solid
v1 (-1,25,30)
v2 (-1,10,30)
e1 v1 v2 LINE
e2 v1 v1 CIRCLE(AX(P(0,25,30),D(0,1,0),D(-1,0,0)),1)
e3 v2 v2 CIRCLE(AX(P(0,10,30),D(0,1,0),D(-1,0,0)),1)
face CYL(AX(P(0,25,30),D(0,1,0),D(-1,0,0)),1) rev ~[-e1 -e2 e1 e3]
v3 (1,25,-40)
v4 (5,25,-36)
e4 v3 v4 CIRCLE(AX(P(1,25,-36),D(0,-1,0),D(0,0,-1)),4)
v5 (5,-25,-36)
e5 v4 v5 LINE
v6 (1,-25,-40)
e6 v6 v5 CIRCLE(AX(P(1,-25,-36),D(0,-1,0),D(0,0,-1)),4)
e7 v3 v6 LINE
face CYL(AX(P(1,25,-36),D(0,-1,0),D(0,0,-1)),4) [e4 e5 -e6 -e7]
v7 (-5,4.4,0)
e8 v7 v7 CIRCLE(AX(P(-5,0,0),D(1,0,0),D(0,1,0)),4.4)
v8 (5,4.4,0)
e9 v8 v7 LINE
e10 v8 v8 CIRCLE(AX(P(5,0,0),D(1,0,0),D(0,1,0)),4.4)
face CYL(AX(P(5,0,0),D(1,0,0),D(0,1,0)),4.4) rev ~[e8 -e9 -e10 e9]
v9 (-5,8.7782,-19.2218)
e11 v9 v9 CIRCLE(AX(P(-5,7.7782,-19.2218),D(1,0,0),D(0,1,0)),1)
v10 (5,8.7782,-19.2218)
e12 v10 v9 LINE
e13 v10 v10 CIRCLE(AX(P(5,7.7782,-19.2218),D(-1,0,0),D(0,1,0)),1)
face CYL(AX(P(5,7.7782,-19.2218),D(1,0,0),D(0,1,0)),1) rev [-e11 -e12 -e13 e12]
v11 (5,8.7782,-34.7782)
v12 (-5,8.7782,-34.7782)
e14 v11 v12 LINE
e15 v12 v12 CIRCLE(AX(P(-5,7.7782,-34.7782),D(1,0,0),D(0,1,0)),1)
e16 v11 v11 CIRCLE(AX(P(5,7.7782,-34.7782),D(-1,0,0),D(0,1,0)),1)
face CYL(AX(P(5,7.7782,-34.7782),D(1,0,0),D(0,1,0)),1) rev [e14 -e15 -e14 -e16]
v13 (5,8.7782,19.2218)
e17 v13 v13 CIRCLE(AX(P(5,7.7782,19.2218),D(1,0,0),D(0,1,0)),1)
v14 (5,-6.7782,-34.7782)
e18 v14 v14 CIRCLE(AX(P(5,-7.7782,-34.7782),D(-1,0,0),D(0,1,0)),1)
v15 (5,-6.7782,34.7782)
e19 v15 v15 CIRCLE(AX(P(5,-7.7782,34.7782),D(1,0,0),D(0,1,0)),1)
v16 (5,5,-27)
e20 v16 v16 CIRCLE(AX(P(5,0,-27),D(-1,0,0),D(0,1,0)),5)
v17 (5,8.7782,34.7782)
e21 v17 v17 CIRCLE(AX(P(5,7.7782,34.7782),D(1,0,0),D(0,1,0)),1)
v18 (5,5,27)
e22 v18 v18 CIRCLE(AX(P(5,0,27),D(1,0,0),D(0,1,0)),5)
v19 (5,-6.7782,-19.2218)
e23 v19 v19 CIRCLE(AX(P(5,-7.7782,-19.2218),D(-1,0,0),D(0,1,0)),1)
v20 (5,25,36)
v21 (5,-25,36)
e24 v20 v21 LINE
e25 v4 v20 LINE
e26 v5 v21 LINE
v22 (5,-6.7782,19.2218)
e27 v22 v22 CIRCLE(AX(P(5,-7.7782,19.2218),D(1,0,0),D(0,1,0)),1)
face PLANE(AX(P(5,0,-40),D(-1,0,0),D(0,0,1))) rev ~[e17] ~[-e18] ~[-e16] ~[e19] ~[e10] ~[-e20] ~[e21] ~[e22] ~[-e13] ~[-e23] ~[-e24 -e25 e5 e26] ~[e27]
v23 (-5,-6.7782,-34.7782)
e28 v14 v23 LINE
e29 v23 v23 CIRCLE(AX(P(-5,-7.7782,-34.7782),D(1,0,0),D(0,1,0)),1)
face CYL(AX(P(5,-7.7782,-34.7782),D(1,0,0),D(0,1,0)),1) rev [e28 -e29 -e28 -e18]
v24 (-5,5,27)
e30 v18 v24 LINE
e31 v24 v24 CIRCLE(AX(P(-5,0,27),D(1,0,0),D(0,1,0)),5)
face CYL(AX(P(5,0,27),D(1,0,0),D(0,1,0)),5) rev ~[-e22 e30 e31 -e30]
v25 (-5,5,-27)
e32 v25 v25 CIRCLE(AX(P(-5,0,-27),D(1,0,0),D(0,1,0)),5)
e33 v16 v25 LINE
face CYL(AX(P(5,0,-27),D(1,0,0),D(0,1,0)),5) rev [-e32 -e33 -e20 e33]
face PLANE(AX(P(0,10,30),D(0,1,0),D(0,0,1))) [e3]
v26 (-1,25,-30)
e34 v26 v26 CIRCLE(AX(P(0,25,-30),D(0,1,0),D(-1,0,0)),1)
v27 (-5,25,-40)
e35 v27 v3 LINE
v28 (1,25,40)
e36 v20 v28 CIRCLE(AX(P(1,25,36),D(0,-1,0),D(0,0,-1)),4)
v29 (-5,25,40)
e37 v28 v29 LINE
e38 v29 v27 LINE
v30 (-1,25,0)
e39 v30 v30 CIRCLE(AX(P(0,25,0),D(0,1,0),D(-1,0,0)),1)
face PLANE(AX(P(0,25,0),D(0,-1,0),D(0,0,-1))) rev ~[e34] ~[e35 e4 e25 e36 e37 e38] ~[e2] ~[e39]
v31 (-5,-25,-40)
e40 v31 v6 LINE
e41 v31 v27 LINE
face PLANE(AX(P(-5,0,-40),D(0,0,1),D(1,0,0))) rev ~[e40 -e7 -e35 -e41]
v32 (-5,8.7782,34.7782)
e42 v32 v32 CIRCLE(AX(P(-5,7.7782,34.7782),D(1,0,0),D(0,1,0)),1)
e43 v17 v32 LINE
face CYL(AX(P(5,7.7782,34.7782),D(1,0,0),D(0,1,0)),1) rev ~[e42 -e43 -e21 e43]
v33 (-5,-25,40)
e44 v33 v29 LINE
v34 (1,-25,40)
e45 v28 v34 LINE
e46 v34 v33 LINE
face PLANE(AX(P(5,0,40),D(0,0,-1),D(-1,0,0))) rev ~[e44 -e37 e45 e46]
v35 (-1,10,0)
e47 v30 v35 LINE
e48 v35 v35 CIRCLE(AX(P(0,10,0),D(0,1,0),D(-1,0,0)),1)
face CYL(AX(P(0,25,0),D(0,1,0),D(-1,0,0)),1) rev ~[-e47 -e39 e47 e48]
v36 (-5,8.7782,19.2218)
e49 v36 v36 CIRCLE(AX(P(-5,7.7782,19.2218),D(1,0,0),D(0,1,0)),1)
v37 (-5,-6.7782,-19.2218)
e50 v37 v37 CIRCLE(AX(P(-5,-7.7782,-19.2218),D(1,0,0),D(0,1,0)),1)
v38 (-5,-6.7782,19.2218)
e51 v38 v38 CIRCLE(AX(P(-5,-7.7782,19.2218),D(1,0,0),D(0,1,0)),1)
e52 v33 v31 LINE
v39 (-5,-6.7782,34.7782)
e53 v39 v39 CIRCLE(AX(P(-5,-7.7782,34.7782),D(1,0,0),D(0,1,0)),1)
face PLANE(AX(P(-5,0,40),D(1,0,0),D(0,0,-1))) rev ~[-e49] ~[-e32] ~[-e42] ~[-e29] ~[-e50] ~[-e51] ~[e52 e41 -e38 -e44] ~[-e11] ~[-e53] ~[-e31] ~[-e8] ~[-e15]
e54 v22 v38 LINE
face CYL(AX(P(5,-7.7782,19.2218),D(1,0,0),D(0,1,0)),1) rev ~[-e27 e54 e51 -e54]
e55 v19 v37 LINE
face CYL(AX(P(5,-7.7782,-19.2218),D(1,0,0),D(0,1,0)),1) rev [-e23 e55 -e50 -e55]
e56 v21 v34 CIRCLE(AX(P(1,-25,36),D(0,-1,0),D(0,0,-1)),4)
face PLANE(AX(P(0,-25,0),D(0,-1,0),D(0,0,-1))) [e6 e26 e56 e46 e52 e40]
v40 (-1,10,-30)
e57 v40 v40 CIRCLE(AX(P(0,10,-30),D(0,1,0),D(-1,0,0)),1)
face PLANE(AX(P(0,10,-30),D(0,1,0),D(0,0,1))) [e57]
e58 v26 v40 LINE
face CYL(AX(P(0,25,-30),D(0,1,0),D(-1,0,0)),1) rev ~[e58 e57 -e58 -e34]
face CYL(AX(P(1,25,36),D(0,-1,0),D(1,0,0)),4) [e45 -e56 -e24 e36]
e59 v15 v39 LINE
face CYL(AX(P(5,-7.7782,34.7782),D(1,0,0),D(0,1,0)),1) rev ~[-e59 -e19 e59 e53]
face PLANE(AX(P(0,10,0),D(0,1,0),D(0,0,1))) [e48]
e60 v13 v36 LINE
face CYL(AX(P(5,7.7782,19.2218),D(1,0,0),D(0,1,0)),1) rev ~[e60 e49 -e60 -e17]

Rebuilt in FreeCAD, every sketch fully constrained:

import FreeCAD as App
import Part
import Sketcher
from FreeCAD import Vector
Q = App.Units.Quantity


def edges_at(feature, points):
    """Names of the edges that pass closest to the given points."""
    edges = feature.Shape.Edges
    near = lambda p: min(range(len(edges)), key=lambda i: edges[i].distToShape(Part.Vertex(*p))[0])
    return sorted({f"Edge{near(p) + 1}" for p in points})

doc = App.newDocument("Part")
body = doc.addObject("PartDesign::Body", "Body")

sketch1 = body.newObject("Sketcher::SketchObject", "Sketch")
sketch1.AttachmentSupport = (doc.getObject("XZ_Plane"), [""])
sketch1.MapMode = "FlatFace"
sketch1.addGeometry([
    Part.LineSegment(Vector(-5, 40, 0), Vector(-5, -40, 0)),
    Part.LineSegment(Vector(-5, -40, 0), Vector(5, -40, 0)),
    Part.LineSegment(Vector(5, -40, 0), Vector(5, 40, 0)),
    Part.LineSegment(Vector(5, 40, 0), Vector(-5, 40, 0)),
], False)
sketch1.addConstraint([
    Sketcher.Constraint("Coincident", 0, 2, 1, 1),
    Sketcher.Constraint("Coincident", 1, 2, 2, 1),
    Sketcher.Constraint("Coincident", 2, 2, 3, 1),
    Sketcher.Constraint("Coincident", 3, 2, 0, 1),
    Sketcher.Constraint("Vertical", 0),
    Sketcher.Constraint("Horizontal", 1),
    Sketcher.Constraint("Vertical", 2),
    Sketcher.Constraint("Horizontal", 3),
    Sketcher.Constraint("Symmetric", 0, 2, 2, 2, -1, 1),
    Sketcher.Constraint("DistanceX", 0, 2, -1, 1, Q("5 mm")),
    Sketcher.Constraint("DistanceY", 0, 2, 0, 1, Q("80 mm")),
])
pad1 = body.newObject("PartDesign::Pad", "Pad")
pad1.Profile = sketch1
pad1.Length = 50
pad1.Midplane = True

sketch2 = body.newObject("Sketcher::SketchObject", "Sketch001")
sketch2.AttachmentSupport = (doc.getObject("YZ_Plane"), [""])
sketch2.MapMode = "FlatFace"
sketch2.AttachmentOffset = App.Placement(Vector(0, 0, 5), App.Rotation())
sketch2.addGeometry(Part.Circle(Vector(0, 0, 0), Vector(0, 0, 1), 4.4), False)
sketch2.addConstraint([
    Sketcher.Constraint("Coincident", 0, 3, -1, 1),
    Sketcher.Constraint("Diameter", 0, Q("8.8 mm")),
])
pocket1 = body.newObject("PartDesign::Pocket", "Pocket")
pocket1.Profile = sketch2
pocket1.Type = "ThroughAll"

sketch3 = body.newObject("Sketcher::SketchObject", "Sketch002")
sketch3.AttachmentSupport = (doc.getObject("YZ_Plane"), [""])
sketch3.MapMode = "FlatFace"
sketch3.AttachmentOffset = App.Placement(Vector(0, 0, 5), App.Rotation())
sketch3.addGeometry([
    Part.Circle(Vector(-7.8, 34.8, 0), Vector(0, 0, 1), 1),
    Part.Circle(Vector(-7.8, 19.2, 0), Vector(0, 0, 1), 1),
    Part.Circle(Vector(7.8, 19.2, 0), Vector(0, 0, 1), 1),
    Part.Circle(Vector(7.8, 34.8, 0), Vector(0, 0, 1), 1),
    Part.Circle(Vector(0, 27, 0), Vector(0, 0, 1), 5),
], False)
sketch3.addConstraint([
    Sketcher.Constraint("Equal", 0, 1),
    Sketcher.Constraint("Equal", 1, 2),
    Sketcher.Constraint("Equal", 2, 3),
    Sketcher.Constraint("Symmetric", 1, 3, 2, 3, -2),
    Sketcher.Constraint("Symmetric", 0, 3, 3, 3, -2),
    Sketcher.Constraint("PointOnObject", 4, 3, -2),
    Sketcher.Constraint("Vertical", 0, 3, 1, 3),
    Sketcher.Constraint("Diameter", 0, Q("2 mm")),
    Sketcher.Constraint("Diameter", 4, Q("10 mm")),
    Sketcher.Constraint("DistanceY", -1, 1, 4, 3, Q("27 mm")),
    Sketcher.Constraint("DistanceX", 0, 3, -1, 1, Q("7.7782 mm")),
    Sketcher.Constraint("DistanceY", 4, 3, 0, 3, Q("7.7782 mm")),
    Sketcher.Constraint("DistanceY", 1, 3, 4, 3, Q("7.7782 mm")),
])
pocket2 = body.newObject("PartDesign::Pocket", "Pocket001")
pocket2.Profile = sketch3
pocket2.Type = "ThroughAll"
doc.recompute()

mirrored = body.newObject("PartDesign::Mirrored", "Mirrored")
mirrored.Originals = [pocket2]
mirrored.MirrorPlane = (doc.getObject("XY_Plane"), [""])
body.Tip = mirrored

sketch4 = body.newObject("Sketcher::SketchObject", "Sketch003")
sketch4.AttachmentSupport = (doc.getObject("XZ_Plane"), [""])
sketch4.MapMode = "FlatFace"
sketch4.AttachmentOffset = App.Placement(Vector(0, 0, -25), App.Rotation())
sketch4.addGeometry([
    Part.Circle(Vector(0, 30, 0), Vector(0, 0, 1), 1),
    Part.Circle(Vector(0, 0, 0), Vector(0, 0, 1), 1),
    Part.Circle(Vector(0, -30, 0), Vector(0, 0, 1), 1),
], False)
sketch4.addConstraint([
    Sketcher.Constraint("Coincident", 1, 3, -1, 1),
    Sketcher.Constraint("Equal", 0, 1),
    Sketcher.Constraint("Equal", 1, 2),
    Sketcher.Constraint("Symmetric", 0, 3, 2, 3, -1, 1),
    Sketcher.Constraint("PointOnObject", 0, 3, -2),
    Sketcher.Constraint("Diameter", 0, Q("2 mm")),
    Sketcher.Constraint("DistanceY", -1, 1, 0, 3, Q("30 mm")),
])
pocket3 = body.newObject("PartDesign::Pocket", "Pocket002")
pocket3.Profile = sketch4
pocket3.Length = 15
pocket3.Reversed = True
doc.recompute()

fillet = body.newObject("PartDesign::Fillet", "Fillet")
fillet.Base = (pocket3, edges_at(pocket3, [(5, 0, 40), (5, 0, -40)]))
fillet.Radius = 4

doc.recompute()
